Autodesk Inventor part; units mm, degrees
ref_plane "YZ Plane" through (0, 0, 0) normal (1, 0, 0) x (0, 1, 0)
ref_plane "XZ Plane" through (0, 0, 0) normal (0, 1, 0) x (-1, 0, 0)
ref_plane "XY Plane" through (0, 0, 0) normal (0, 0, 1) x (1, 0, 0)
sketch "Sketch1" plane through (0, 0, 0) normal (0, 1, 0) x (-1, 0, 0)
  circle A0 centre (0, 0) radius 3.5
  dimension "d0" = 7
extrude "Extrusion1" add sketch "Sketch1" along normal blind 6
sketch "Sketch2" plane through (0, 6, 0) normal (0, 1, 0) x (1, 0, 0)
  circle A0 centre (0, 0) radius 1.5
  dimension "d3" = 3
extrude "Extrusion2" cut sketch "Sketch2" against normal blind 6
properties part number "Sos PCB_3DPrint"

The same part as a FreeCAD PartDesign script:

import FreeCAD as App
import Part
import Sketcher
from FreeCAD import Vector

doc = App.newDocument("Part")
body = doc.addObject("PartDesign::Body", "Body")

sketch1 = body.newObject("Sketcher::SketchObject", "Sketch")
sketch1.AttachmentSupport = (doc.getObject("XZ_Plane"), [""])
sketch1.MapMode = "FlatFace"
sketch1.addGeometry(Part.Circle(Vector(0, 0, 0), Vector(0, 0, 1), 3.5), False)
sketch1.addConstraint([
    Sketcher.Constraint("Coincident", 0, 3, -1, 1),
    Sketcher.Constraint("Diameter", 0, 7.0),
])
pad1 = body.newObject("PartDesign::Pad", "Pad")
pad1.Profile = sketch1
pad1.Length = 6
pad1.Reversed = True

sketch2 = body.newObject("Sketcher::SketchObject", "Sketch001")
sketch2.AttachmentSupport = (doc.getObject("XZ_Plane"), [""])
sketch2.MapMode = "FlatFace"
sketch2.AttachmentOffset = App.Placement(Vector(0, 0, -6), App.Rotation())
sketch2.addGeometry(Part.Circle(Vector(0, 0, 0), Vector(0, 0, 1), 1.5), False)
sketch2.addConstraint([
    Sketcher.Constraint("Coincident", 0, 3, -1, 1),
    Sketcher.Constraint("Diameter", 0, 3.0),
])
pocket1 = body.newObject("PartDesign::Pocket", "Pocket")
pocket1.Profile = sketch2
pocket1.Length = 6
pocket1.Reversed = True

doc.recompute()
